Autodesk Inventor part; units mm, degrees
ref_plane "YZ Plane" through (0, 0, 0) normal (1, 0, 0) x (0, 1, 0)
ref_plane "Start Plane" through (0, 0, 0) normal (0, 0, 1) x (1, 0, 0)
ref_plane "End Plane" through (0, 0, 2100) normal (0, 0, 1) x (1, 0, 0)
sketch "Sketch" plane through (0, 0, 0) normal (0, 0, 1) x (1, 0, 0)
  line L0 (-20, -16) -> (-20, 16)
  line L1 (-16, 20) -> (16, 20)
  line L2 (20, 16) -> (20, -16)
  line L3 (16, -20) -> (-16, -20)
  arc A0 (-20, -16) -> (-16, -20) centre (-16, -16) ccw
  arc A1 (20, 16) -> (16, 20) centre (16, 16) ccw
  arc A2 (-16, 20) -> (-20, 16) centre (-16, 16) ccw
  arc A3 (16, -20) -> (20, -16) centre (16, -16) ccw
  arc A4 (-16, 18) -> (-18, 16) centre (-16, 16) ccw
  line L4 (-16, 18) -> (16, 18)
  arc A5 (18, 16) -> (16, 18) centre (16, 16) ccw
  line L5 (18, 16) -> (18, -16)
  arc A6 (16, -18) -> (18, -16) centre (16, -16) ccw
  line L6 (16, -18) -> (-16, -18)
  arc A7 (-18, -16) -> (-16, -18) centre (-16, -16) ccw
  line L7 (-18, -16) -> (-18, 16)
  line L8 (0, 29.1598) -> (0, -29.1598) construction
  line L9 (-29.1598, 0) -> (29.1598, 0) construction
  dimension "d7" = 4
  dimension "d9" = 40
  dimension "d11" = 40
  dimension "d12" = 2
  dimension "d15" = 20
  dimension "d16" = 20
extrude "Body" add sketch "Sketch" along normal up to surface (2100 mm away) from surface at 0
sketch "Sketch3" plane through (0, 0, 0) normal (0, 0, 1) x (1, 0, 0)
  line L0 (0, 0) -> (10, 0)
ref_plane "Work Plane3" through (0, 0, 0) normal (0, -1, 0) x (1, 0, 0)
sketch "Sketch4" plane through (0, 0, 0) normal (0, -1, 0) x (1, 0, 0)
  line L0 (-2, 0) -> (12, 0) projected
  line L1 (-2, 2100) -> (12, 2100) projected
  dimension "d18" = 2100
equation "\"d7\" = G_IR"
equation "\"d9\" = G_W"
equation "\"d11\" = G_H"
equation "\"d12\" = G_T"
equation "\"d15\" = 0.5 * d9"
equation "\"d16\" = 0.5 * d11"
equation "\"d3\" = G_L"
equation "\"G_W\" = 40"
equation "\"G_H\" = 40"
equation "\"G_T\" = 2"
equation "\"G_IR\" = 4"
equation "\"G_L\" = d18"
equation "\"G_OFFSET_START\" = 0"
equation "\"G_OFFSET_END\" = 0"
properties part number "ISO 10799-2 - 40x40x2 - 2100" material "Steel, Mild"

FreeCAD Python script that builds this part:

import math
import FreeCAD as App
import Part
import Sketcher
Q = App.Units.Quantity

doc = App.newDocument("Part")
params = doc.addObject("Spreadsheet::Sheet", "Params")
for row, (alias, value) in enumerate([
    ("sketch1_radius", "4 mm"),
    ("sketch1_radius2", "2 mm"),
    ("pad1_length", "2100 mm"),
], start=1):
    params.set(f"A{row}", alias)
    params.set(f"B{row}", "=" + value)
    params.setAlias(f"B{row}", alias)

body = doc.addObject("PartDesign::Body", "Body")

# Sketch on XY plane
sketch1 = body.newObject("Sketcher::SketchObject", "Sketch")
sketch1.AttachmentSupport = (doc.getObject("XY_Plane"), [""])
sketch1.MapMode = "FlatFace"
sketch1.addGeometry(Part.LineSegment(App.Vector(-20, 16, 0), App.Vector(-20, -16, 0)), False)
sketch1.addGeometry(Part.ArcOfCircle(Part.Circle(App.Vector(-16, -16, 0), App.Vector(0, 0, 1), 4), math.radians(180), math.radians(270)), False)
sketch1.addGeometry(Part.LineSegment(App.Vector(-16, -20, 0), App.Vector(16, -20, 0)), False)
sketch1.addGeometry(Part.ArcOfCircle(Part.Circle(App.Vector(16, -16, 0), App.Vector(0, 0, 1), 4), math.radians(-90), math.radians(0)), False)
sketch1.addGeometry(Part.LineSegment(App.Vector(20, -16, 0), App.Vector(20, 16, 0)), False)
sketch1.addGeometry(Part.ArcOfCircle(Part.Circle(App.Vector(16, 16, 0), App.Vector(0, 0, 1), 4), math.radians(0), math.radians(90)), False)
sketch1.addGeometry(Part.LineSegment(App.Vector(16, 20, 0), App.Vector(-16, 20, 0)), False)
sketch1.addGeometry(Part.ArcOfCircle(Part.Circle(App.Vector(-16, 16, 0), App.Vector(0, 0, 1), 4), math.radians(90), math.radians(180)), False)
sketch1.addGeometry(Part.ArcOfCircle(Part.Circle(App.Vector(-16, 16, 0), App.Vector(0, 0, 1), 2), math.radians(90), math.radians(180)), False)
sketch1.addGeometry(Part.LineSegment(App.Vector(-16, 18, 0), App.Vector(16, 18, 0)), False)
sketch1.addGeometry(Part.ArcOfCircle(Part.Circle(App.Vector(16, 16, 0), App.Vector(0, 0, 1), 2), math.radians(0), math.radians(90)), False)
sketch1.addGeometry(Part.LineSegment(App.Vector(18, 16, 0), App.Vector(18, -16, 0)), False)
sketch1.addGeometry(Part.ArcOfCircle(Part.Circle(App.Vector(16, -16, 0), App.Vector(0, 0, 1), 2), math.radians(-90), math.radians(0)), False)
sketch1.addGeometry(Part.LineSegment(App.Vector(16, -18, 0), App.Vector(-16, -18, 0)), False)
sketch1.addGeometry(Part.ArcOfCircle(Part.Circle(App.Vector(-16, -16, 0), App.Vector(0, 0, 1), 2), math.radians(180), math.radians(270)), False)
sketch1.addGeometry(Part.LineSegment(App.Vector(-18, -16, 0), App.Vector(-18, 16, 0)), False)
sketch1.addConstraint(Sketcher.Constraint("Tangent", 0, 2, 1, 1))
sketch1.addConstraint(Sketcher.Constraint("Tangent", 1, 2, 2, 1))
sketch1.addConstraint(Sketcher.Constraint("Tangent", 2, 2, 3, 1))
sketch1.addConstraint(Sketcher.Constraint("Tangent", 3, 2, 4, 1))
sketch1.addConstraint(Sketcher.Constraint("Tangent", 4, 2, 5, 1))
sketch1.addConstraint(Sketcher.Constraint("Tangent", 5, 2, 6, 1))
sketch1.addConstraint(Sketcher.Constraint("Tangent", 6, 2, 7, 1))
sketch1.addConstraint(Sketcher.Constraint("Tangent", 7, 2, 0, 1))
sketch1.addConstraint(Sketcher.Constraint("Tangent", 8, 1, 9, 1))
sketch1.addConstraint(Sketcher.Constraint("Tangent", 9, 2, 10, 2))
sketch1.addConstraint(Sketcher.Constraint("Tangent", 10, 1, 11, 1))
sketch1.addConstraint(Sketcher.Constraint("Tangent", 11, 2, 12, 2))
sketch1.addConstraint(Sketcher.Constraint("Tangent", 12, 1, 13, 1))
sketch1.addConstraint(Sketcher.Constraint("Tangent", 13, 2, 14, 2))
sketch1.addConstraint(Sketcher.Constraint("Tangent", 14, 1, 15, 1))
sketch1.addConstraint(Sketcher.Constraint("Tangent", 15, 2, 8, 2))
sketch1.addConstraint(Sketcher.Constraint("Vertical", 0))
sketch1.addConstraint(Sketcher.Constraint("Horizontal", 2))
sketch1.addConstraint(Sketcher.Constraint("Vertical", 4))
sketch1.addConstraint(Sketcher.Constraint("Horizontal", 6))
sketch1.addConstraint(Sketcher.Constraint("Horizontal", 9))
sketch1.addConstraint(Sketcher.Constraint("Vertical", 11))
sketch1.addConstraint(Sketcher.Constraint("Horizontal", 13))
sketch1.addConstraint(Sketcher.Constraint("Vertical", 15))
sketch1.addConstraint(Sketcher.Constraint("Coincident", 8, 3, 7, 3))
sketch1.addConstraint(Sketcher.Constraint("Coincident", 10, 3, 5, 3))
sketch1.addConstraint(Sketcher.Constraint("Coincident", 12, 3, 3, 3))
sketch1.addConstraint(Sketcher.Constraint("Equal", 1, 3))
sketch1.addConstraint(Sketcher.Constraint("Equal", 3, 5))
sketch1.addConstraint(Sketcher.Constraint("Equal", 5, 7))
sketch1.addConstraint(Sketcher.Constraint("Equal", 12, 14))
sketch1.addConstraint(Sketcher.Constraint("Symmetric", 1, 3, 5, 3, -1, 1))
sketch1.addConstraint(Sketcher.Constraint("Equal", 13, 0))
sketch1.addConstraint(Sketcher.Constraint("Radius", 1, Q("4 mm")))
sketch1.addConstraint(Sketcher.Constraint("Radius", 8, Q("2 mm")))
sketch1.addConstraint(Sketcher.Constraint("DistanceX", 0, 2, -1, 1, Q("20 mm")))
sketch1.setExpression("Constraints[33]", "Params.sketch1_radius")
sketch1.setExpression("Constraints[34]", "Params.sketch1_radius2")
pad1 = body.newObject("PartDesign::Pad", "Pad")
pad1.Profile = sketch1
pad1.setExpression("Length", "Params.pad1_length")

doc.recompute()
